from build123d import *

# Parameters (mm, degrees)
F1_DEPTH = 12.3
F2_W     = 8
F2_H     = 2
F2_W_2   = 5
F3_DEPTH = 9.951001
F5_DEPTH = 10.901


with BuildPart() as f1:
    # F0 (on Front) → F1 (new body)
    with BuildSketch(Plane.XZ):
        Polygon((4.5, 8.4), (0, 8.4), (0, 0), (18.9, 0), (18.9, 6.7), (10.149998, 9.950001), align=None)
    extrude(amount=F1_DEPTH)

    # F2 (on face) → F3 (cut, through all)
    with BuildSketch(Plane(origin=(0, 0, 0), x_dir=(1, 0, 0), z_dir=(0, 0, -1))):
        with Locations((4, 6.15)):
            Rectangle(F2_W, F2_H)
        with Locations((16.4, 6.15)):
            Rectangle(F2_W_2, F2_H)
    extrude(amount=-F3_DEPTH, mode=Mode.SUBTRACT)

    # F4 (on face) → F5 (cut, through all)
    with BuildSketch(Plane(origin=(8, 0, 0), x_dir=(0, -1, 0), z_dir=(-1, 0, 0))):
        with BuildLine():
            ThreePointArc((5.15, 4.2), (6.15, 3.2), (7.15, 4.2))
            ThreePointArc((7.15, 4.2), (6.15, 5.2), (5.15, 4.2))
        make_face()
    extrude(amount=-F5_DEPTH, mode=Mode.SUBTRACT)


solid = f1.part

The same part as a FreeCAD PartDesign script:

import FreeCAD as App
import Part
import Sketcher

V = App.Vector


def add_polygon(sketch, points):
    """Adds a closed chain of lines whose ends are joined by coincident constraints."""
    first, n = sketch.GeometryCount, len(points)
    for a, b in zip(points, points[1:] + points[:1]):
        sketch.addGeometry(Part.LineSegment(App.Vector(*a, 0), App.Vector(*b, 0)), False)
    for i in range(n):
        sketch.addConstraint(Sketcher.Constraint("Coincident", first + i, 2, first + (i + 1) % n, 1))

doc = App.newDocument("Part")
params = doc.addObject("Spreadsheet::Sheet", "Params")
for row, (alias, value) in enumerate([
    ("sketch1_width", "4.5 mm"),
    ("sketch1_width2", "18.9 mm"),
    ("sketch1_height", "8.4 mm"),
    ("sketch1_height2", "6.7 mm"),
    ("pad1_length", "12.3 mm"),
    ("sketch2_width", "8 mm"),
    ("sketch2_width2", "5 mm"),
    ("sketch2_height", "2 mm"),
    ("sketch3_diameter", "2 mm"),
], start=1):
    params.set(f"A{row}", alias)
    params.set(f"B{row}", "=" + value)
    params.setAlias(f"B{row}", alias)

body = doc.addObject("PartDesign::Body", "Body")

# Sketch on XZ plane
sketch1 = doc.addObject("Sketcher::SketchObject", "Sketch")
body.addObject(sketch1)
sketch1.AttachmentSupport = (doc.XZ_Plane, [""])
sketch1.MapMode = "FlatFace"
add_polygon(sketch1, [(4.5, 8.4), (0, 8.4), (0, 0), (18.9, 0), (18.9, 6.7), (10.1, 10)])  # lines 0-5
sketch1.addConstraint(Sketcher.Constraint("Horizontal", 0))
sketch1.addConstraint(Sketcher.Constraint("Vertical", 1))
sketch1.addConstraint(Sketcher.Constraint("Horizontal", 2))
sketch1.addConstraint(Sketcher.Constraint("Vertical", 3))
sketch1.addConstraint(Sketcher.Constraint("Coincident", 1, 2, -1, 1))
sketch1.addConstraint(Sketcher.Constraint("DistanceX", 0, 2, 0, 1, 4.5))
sketch1.addConstraint(Sketcher.Constraint("DistanceX", 2, 1, 2, 2, 18.9))
sketch1.addConstraint(Sketcher.Constraint("DistanceY", 1, 2, 1, 1, 8.4))
sketch1.addConstraint(Sketcher.Constraint("DistanceY", 3, 1, 3, 2, 6.7))
sketch1.addConstraint(Sketcher.Constraint("DistanceY", -1, 1, 4, 2, 9.950001))
sketch1.addConstraint(Sketcher.Constraint("DistanceX", 4, 2, 3, 2, 8.750002))
sketch1.setExpression("Constraints[11]", "Params.sketch1_width")
sketch1.setExpression("Constraints[12]", "Params.sketch1_width2")
sketch1.setExpression("Constraints[13]", "Params.sketch1_height")
sketch1.setExpression("Constraints[14]", "Params.sketch1_height2")
pad1 = doc.addObject("PartDesign::Pad", "Pad")
body.addObject(pad1)
pad1.Profile = sketch1
pad1.setExpression("Length", "Params.pad1_length")

# Sketch on XY plane
sketch2 = doc.addObject("Sketcher::SketchObject", "Sketch001")
body.addObject(sketch2)
sketch2.AttachmentSupport = (doc.XY_Plane, [""])
sketch2.MapMode = "FlatFace"
add_polygon(sketch2, [(0, -7.2), (0, -5.2), (8, -5.2), (8, -7.2)])  # lines 0-3
add_polygon(sketch2, [(13.9, -7.2), (13.9, -5.2), (18.9, -5.2), (18.9, -7.2)])  # lines 4-7
sketch2.addConstraint(Sketcher.Constraint("Vertical", 0))
sketch2.addConstraint(Sketcher.Constraint("Horizontal", 1))
sketch2.addConstraint(Sketcher.Constraint("Vertical", 2))
sketch2.addConstraint(Sketcher.Constraint("Horizontal", 3))
sketch2.addConstraint(Sketcher.Constraint("Vertical", 4))
sketch2.addConstraint(Sketcher.Constraint("Horizontal", 5))
sketch2.addConstraint(Sketcher.Constraint("Vertical", 6))
sketch2.addConstraint(Sketcher.Constraint("Horizontal", 7))
sketch2.addConstraint(Sketcher.Constraint("PointOnObject", 0, 2, -2))
sketch2.addConstraint(Sketcher.Constraint("Horizontal", 1, 2, 4, 2))
sketch2.addConstraint(Sketcher.Constraint("Horizontal", 3, 2, 6, 2))
sketch2.addConstraint(Sketcher.Constraint("DistanceX", 1, 1, 1, 2, 8.0))
sketch2.addConstraint(Sketcher.Constraint("DistanceX", 5, 1, 5, 2, 5.0))
sketch2.addConstraint(Sketcher.Constraint("DistanceY", 0, 1, 0, 2, 2.0))
sketch2.addConstraint(Sketcher.Constraint("DistanceX", -1, 1, 4, 2, 13.9))
sketch2.addConstraint(Sketcher.Constraint("DistanceY", 0, 2, -1, 1, 5.15))
sketch2.setExpression("Constraints[19]", "Params.sketch2_width")
sketch2.setExpression("Constraints[20]", "Params.sketch2_width2")
sketch2.setExpression("Constraints[21]", "Params.sketch2_height")
pocket1 = doc.addObject("PartDesign::Pocket", "Pocket")
body.addObject(pocket1)
pocket1.Profile = sketch2
pocket1.Type = "ThroughAll"
pocket1.Reversed = True

# Sketch on YZ plane
sketch3 = doc.addObject("Sketcher::SketchObject", "Sketch002")
body.addObject(sketch3)
sketch3.AttachmentSupport = (doc.YZ_Plane, [""])
sketch3.MapMode = "FlatFace"
sketch3.AttachmentOffset = App.Placement(V(0, 0, 8), App.Rotation())
sketch3.addGeometry(Part.Circle(V(-6.2, 4.2, 0), V(0, 0, 1), 1), False)
sketch3.addConstraint(Sketcher.Constraint("Diameter", 0, 2.0))
sketch3.addConstraint(Sketcher.Constraint("DistanceY", -1, 1, 0, 3, 4.2))
sketch3.addConstraint(Sketcher.Constraint("DistanceX", 0, 3, -1, 1, 6.15))
sketch3.setExpression("Constraints[0]", "Params.sketch3_diameter")
pocket2 = doc.addObject("PartDesign::Pocket", "Pocket001")
body.addObject(pocket2)
pocket2.Profile = sketch3
pocket2.Type = "ThroughAll"
pocket2.Reversed = True

doc.recompute()
